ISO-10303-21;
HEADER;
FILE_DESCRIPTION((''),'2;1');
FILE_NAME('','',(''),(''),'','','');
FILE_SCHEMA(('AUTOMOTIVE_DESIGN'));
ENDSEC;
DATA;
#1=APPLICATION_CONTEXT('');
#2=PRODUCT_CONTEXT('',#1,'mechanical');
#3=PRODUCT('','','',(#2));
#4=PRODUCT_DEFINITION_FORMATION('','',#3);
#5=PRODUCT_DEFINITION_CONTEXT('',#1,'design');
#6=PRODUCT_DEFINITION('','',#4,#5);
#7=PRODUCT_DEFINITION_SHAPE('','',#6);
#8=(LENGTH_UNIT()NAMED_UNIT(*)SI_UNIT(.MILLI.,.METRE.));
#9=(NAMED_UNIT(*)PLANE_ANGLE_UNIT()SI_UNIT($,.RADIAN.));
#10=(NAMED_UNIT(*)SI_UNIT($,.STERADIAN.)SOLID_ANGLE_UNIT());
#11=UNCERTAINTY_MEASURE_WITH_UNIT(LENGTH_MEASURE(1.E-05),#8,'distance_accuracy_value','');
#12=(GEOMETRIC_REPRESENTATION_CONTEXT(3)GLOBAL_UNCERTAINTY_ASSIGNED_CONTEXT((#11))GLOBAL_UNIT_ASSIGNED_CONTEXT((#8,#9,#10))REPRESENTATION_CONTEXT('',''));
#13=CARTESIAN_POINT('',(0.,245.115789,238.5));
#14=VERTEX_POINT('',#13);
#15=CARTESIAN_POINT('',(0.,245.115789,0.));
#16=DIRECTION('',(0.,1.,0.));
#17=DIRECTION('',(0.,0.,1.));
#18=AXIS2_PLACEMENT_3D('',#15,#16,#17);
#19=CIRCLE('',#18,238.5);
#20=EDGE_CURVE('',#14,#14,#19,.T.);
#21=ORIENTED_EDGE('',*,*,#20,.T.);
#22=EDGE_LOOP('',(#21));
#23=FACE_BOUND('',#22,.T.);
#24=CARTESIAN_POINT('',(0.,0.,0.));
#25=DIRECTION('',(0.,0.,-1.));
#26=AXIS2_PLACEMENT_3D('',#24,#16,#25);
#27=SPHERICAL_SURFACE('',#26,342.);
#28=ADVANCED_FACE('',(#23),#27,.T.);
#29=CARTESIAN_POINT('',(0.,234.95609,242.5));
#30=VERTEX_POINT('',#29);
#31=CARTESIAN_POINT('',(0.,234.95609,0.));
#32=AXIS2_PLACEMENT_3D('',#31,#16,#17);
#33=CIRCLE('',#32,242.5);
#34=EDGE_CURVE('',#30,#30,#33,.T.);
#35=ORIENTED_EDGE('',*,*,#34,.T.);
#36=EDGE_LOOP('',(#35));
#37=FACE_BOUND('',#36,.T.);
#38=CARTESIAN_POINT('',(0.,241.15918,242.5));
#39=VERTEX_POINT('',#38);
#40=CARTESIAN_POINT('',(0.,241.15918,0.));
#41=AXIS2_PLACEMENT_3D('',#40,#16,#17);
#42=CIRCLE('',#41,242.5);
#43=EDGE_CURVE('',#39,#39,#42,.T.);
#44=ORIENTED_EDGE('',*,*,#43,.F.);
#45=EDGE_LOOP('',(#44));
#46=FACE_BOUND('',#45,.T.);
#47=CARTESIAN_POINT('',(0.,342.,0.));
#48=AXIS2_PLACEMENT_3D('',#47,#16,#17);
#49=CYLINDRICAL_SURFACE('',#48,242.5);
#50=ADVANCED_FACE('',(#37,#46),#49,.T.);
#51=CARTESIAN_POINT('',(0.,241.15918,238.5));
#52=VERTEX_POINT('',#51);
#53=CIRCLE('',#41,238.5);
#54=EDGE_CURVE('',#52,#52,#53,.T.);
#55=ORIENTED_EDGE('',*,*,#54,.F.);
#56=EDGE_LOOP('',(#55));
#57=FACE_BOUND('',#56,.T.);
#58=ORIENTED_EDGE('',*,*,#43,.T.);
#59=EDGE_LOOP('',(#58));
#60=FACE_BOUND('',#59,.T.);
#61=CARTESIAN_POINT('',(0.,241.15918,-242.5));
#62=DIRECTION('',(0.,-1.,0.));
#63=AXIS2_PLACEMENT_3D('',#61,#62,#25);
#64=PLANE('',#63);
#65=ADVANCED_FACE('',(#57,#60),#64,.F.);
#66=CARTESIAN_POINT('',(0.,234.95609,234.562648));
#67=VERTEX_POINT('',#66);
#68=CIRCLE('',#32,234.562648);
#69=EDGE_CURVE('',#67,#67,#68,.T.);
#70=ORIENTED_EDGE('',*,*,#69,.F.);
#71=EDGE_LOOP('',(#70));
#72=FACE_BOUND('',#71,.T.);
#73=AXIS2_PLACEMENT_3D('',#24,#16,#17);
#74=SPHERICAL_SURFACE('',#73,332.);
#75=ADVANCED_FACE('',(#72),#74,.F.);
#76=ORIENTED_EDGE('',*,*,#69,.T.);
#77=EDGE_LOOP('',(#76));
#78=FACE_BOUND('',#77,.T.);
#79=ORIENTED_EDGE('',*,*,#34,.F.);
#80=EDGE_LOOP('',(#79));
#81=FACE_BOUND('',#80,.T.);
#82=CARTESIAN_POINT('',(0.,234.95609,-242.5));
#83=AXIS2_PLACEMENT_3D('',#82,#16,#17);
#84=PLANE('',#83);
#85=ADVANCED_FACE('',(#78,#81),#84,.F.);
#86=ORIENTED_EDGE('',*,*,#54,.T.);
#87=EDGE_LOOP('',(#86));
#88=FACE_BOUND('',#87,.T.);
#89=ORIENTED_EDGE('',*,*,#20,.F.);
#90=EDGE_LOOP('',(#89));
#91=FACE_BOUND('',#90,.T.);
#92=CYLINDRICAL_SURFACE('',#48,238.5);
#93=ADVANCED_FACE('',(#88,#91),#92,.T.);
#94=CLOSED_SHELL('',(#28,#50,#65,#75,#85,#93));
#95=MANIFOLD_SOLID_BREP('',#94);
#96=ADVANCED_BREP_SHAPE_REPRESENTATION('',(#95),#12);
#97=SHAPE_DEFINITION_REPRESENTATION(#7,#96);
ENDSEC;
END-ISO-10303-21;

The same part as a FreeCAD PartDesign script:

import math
import FreeCAD as App
import Part
import Sketcher
Q = App.Units.Quantity

doc = App.newDocument("Part")
body = doc.addObject("PartDesign::Body", "Body")

# Sketch on YZ plane
sketch1 = body.newObject("Sketcher::SketchObject", "Sketch")
sketch1.AttachmentSupport = (doc.getObject("YZ_Plane"), [""])
sketch1.MapMode = "FlatFace"
sketch1.addGeometry([
    Part.LineSegment(App.Vector(241.15918, -242.5, 0), App.Vector(241.15918, -238.5, 0)),  # 0
    Part.LineSegment(App.Vector(241.15918, -238.5, 0), App.Vector(245.115789, -238.5, 0)),  # 1
    Part.ArcOfCircle(Part.Circle(App.Vector(0, 0, 0), App.Vector(0, 0, 1), 342), math.radians(-44.216252), math.radians(0)),  # 2
    Part.LineSegment(App.Vector(342, 0, 0), App.Vector(332, 0, 0)),  # 3
    Part.ArcOfCircle(Part.Circle(App.Vector(0, 0, 0), App.Vector(0, 0, 1), 332), math.radians(-44.951988), math.radians(0)),  # 4
    Part.LineSegment(App.Vector(234.95609, -234.562648, 0), App.Vector(234.95609, -242.5, 0)),  # 5
    Part.LineSegment(App.Vector(234.95609, -242.5, 0), App.Vector(241.15918, -242.5, 0)),  # 6
], False)
sketch1.addConstraint([
    Sketcher.Constraint("Coincident", 0, 2, 1, 1),
    Sketcher.Constraint("Coincident", 1, 2, 2, 1),
    Sketcher.Constraint("Coincident", 2, 2, 3, 1),
    Sketcher.Constraint("Coincident", 3, 2, 4, 2),
    Sketcher.Constraint("Coincident", 4, 1, 5, 1),
    Sketcher.Constraint("Coincident", 5, 2, 6, 1),
    Sketcher.Constraint("Coincident", 6, 2, 0, 1),
    Sketcher.Constraint("Vertical", 0),
    Sketcher.Constraint("Horizontal", 1),
    Sketcher.Constraint("Horizontal", 3),
    Sketcher.Constraint("Vertical", 5),
    Sketcher.Constraint("Horizontal", 6),
    Sketcher.Constraint("Coincident", 2, 3, -1, 1),
    Sketcher.Constraint("Coincident", 4, 3, -1, 1),
    Sketcher.Constraint("PointOnObject", 2, 2, -1),
    Sketcher.Constraint("Radius", 2, Q("342 mm")),
    Sketcher.Constraint("Radius", 4, Q("332 mm")),
    Sketcher.Constraint("DistanceY", 0, 1, 0, 2, Q("4 mm")),
    Sketcher.Constraint("DistanceY", 0, 2, -1, 1, Q("238.5 mm")),
    Sketcher.Constraint("DistanceX", 1, 1, 1, 2, Q("3.956609 mm")),
    Sketcher.Constraint("DistanceX", 6, 1, 6, 2, Q("6.20309 mm")),
])
revolution = body.newObject("PartDesign::Revolution", "Revolution")
revolution.Profile = sketch1
revolution.ReferenceAxis = (sketch1, ["H_Axis"])
revolution.Angle = 360

doc.recompute()
